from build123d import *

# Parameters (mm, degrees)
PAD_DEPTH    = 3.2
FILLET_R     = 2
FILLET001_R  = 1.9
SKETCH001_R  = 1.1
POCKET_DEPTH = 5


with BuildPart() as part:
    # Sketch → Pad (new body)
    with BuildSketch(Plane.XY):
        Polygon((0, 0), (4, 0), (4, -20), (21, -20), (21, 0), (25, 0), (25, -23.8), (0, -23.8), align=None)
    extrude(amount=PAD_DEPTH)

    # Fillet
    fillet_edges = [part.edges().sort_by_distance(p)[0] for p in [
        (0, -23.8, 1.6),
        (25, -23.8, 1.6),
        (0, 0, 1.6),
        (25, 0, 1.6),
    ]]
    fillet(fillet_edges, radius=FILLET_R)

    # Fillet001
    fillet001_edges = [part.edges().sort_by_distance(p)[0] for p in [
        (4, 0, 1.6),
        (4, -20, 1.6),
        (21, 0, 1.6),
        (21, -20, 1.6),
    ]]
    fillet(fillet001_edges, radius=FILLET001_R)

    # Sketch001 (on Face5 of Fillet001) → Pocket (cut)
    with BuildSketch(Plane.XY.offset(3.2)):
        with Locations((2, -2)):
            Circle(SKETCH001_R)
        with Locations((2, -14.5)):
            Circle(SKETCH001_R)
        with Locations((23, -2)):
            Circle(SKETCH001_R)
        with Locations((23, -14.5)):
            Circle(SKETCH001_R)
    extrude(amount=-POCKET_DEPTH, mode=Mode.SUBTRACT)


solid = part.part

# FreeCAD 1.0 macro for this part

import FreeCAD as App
import Part
import Sketcher
from FreeCAD import Vector
Q = App.Units.Quantity


def edges_at(feature, points):
    """Names of the edges that pass closest to the given points."""
    edges = feature.Shape.Edges
    near = lambda p: min(range(len(edges)), key=lambda i: edges[i].distToShape(Part.Vertex(*p))[0])
    return sorted({f"Edge{near(p) + 1}" for p in points})

doc = App.newDocument("Part")
body = doc.addObject("PartDesign::Body", "Body")

# Sketch on XY plane
sketch1 = body.newObject("Sketcher::SketchObject", "Sketch")
sketch1.AttachmentSupport = (doc.getObject("XY_Plane"), [""])
sketch1.MapMode = "FlatFace"
sketch1.addGeometry(Part.LineSegment(Vector(4, 0, 0), Vector(0, 0, 0)), False)
sketch1.addGeometry(Part.LineSegment(Vector(0, 0, 0), Vector(0, -23.8, 0)), False)
sketch1.addGeometry(Part.LineSegment(Vector(0, -23.8, 0), Vector(25, -23.8, 0)), False)
sketch1.addGeometry(Part.LineSegment(Vector(25, -23.8, 0), Vector(25, 0, 0)), False)
sketch1.addGeometry(Part.LineSegment(Vector(25, 0, 0), Vector(21, 0, 0)), False)
sketch1.addGeometry(Part.LineSegment(Vector(21, 0, 0), Vector(21, -20, 0)), False)
sketch1.addGeometry(Part.LineSegment(Vector(21, -20, 0), Vector(4, -20, 0)), False)
sketch1.addGeometry(Part.LineSegment(Vector(4, -20, 0), Vector(4, 0, 0)), False)
sketch1.addConstraint(Sketcher.Constraint("Coincident", 0, 2, 1, 1))
sketch1.addConstraint(Sketcher.Constraint("Coincident", 1, 2, 2, 1))
sketch1.addConstraint(Sketcher.Constraint("Coincident", 2, 2, 3, 1))
sketch1.addConstraint(Sketcher.Constraint("Coincident", 3, 2, 4, 1))
sketch1.addConstraint(Sketcher.Constraint("Coincident", 4, 2, 5, 1))
sketch1.addConstraint(Sketcher.Constraint("Coincident", 5, 2, 6, 1))
sketch1.addConstraint(Sketcher.Constraint("Coincident", 6, 2, 7, 1))
sketch1.addConstraint(Sketcher.Constraint("Coincident", 7, 2, 0, 1))
sketch1.addConstraint(Sketcher.Constraint("Horizontal", 0))
sketch1.addConstraint(Sketcher.Constraint("Vertical", 1))
sketch1.addConstraint(Sketcher.Constraint("Horizontal", 2))
sketch1.addConstraint(Sketcher.Constraint("Vertical", 3))
sketch1.addConstraint(Sketcher.Constraint("Horizontal", 4))
sketch1.addConstraint(Sketcher.Constraint("Vertical", 5))
sketch1.addConstraint(Sketcher.Constraint("Horizontal", 6))
sketch1.addConstraint(Sketcher.Constraint("Vertical", 7))
sketch1.addConstraint(Sketcher.Constraint("Coincident", 0, 2, -1, 1))
sketch1.addConstraint(Sketcher.Constraint("PointOnObject", 3, 2, -1))
sketch1.addConstraint(Sketcher.Constraint("Equal", 0, 4))
sketch1.addConstraint(Sketcher.Constraint("DistanceX", 0, 2, 0, 1, Q("4 mm")))
sketch1.addConstraint(Sketcher.Constraint("DistanceX", 2, 1, 2, 2, Q("25 mm")))
sketch1.addConstraint(Sketcher.Constraint("DistanceY", 5, 2, 5, 1, Q("20 mm")))
sketch1.addConstraint(Sketcher.Constraint("DistanceY", 1, 2, 1, 1, Q("23.8 mm")))
pad1 = body.newObject("PartDesign::Pad", "Pad")
pad1.Profile = sketch1
pad1.Length = 3.2
doc.recompute()

fillet = body.newObject("PartDesign::Fillet", "Fillet")
fillet.Base = (pad1, edges_at(pad1, [
    (0, -23.8, 1.6),
    (25, -23.8, 1.6),
    (0, 0, 1.6),
    (25, 0, 1.6),
]))
fillet.Radius = 2
doc.recompute()

fillet2 = body.newObject("PartDesign::Fillet", "Fillet001")
fillet2.Base = (fillet, edges_at(fillet, [
    (4, 0, 1.6),
    (4, -20, 1.6),
    (21, 0, 1.6),
    (21, -20, 1.6),
]))
fillet2.Radius = 1.9

# Sketch on XY plane
sketch2 = body.newObject("Sketcher::SketchObject", "Sketch001")
sketch2.AttachmentSupport = (doc.getObject("XY_Plane"), [""])
sketch2.MapMode = "FlatFace"
sketch2.AttachmentOffset = App.Placement(Vector(0, 0, 3.2), App.Rotation())
sketch2.addGeometry(Part.Circle(Vector(2, -2, 0), Vector(0, 0, 1), 1.1), False)
sketch2.addGeometry(Part.Circle(Vector(2, -14.5, 0), Vector(0, 0, 1), 1.1), False)
sketch2.addGeometry(Part.Circle(Vector(23, -2, 0), Vector(0, 0, 1), 1.1), False)
sketch2.addGeometry(Part.Circle(Vector(23, -14.5, 0), Vector(0, 0, 1), 1.1), False)
sketch2.addConstraint(Sketcher.Constraint("Equal", 0, 1))
sketch2.addConstraint(Sketcher.Constraint("Equal", 1, 2))
sketch2.addConstraint(Sketcher.Constraint("Equal", 2, 3))
sketch2.addConstraint(Sketcher.Constraint("Horizontal", 0, 3, 2, 3))
sketch2.addConstraint(Sketcher.Constraint("Horizontal", 1, 3, 3, 3))
sketch2.addConstraint(Sketcher.Constraint("Vertical", 0, 3, 1, 3))
sketch2.addConstraint(Sketcher.Constraint("Vertical", 2, 3, 3, 3))
sketch2.addConstraint(Sketcher.Constraint("Diameter", 0, Q("2.2 mm")))
sketch2.addConstraint(Sketcher.Constraint("DistanceX", -1, 1, 0, 3, Q("2 mm")))
sketch2.addConstraint(Sketcher.Constraint("DistanceY", 0, 3, -1, 1, Q("2 mm")))
sketch2.addConstraint(Sketcher.Constraint("DistanceX", -1, 1, 2, 3, Q("23 mm")))
sketch2.addConstraint(Sketcher.Constraint("DistanceY", 1, 3, -1, 1, Q("14.5 mm")))
pocket1 = body.newObject("PartDesign::Pocket", "Pocket")
pocket1.Profile = sketch2
pocket1.Length = 5

doc.recompute()
